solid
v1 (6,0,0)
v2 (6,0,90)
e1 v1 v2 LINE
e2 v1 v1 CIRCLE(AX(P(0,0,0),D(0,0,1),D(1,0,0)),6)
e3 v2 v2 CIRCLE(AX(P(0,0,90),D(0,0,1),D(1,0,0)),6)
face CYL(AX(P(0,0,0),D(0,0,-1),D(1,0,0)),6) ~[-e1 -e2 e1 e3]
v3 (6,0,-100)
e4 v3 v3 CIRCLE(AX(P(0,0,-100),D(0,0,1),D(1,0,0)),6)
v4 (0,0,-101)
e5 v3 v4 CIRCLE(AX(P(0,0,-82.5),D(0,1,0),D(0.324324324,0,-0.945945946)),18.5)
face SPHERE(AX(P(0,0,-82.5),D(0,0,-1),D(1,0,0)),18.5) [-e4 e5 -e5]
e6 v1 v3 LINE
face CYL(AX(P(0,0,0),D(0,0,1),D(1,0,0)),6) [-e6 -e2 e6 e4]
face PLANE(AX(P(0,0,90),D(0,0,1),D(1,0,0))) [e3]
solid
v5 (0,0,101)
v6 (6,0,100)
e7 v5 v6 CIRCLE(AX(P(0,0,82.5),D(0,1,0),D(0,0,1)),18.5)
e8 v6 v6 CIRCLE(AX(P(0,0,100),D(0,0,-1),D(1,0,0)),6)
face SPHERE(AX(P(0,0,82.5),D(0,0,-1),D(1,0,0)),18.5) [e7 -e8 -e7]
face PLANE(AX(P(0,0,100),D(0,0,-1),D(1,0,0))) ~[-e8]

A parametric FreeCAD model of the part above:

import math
import FreeCAD as App
import Part
import Sketcher
Q = App.Units.Quantity

doc = App.newDocument("Part")
body = doc.addObject("PartDesign::Body", "Body")
body.AllowCompound = True

# Sketch on XY plane
sketch1 = doc.addObject("Sketcher::SketchObject", "Sketch")
body.addObject(sketch1)
sketch1.AttachmentSupport = (doc.XY_Plane, [""])
sketch1.MapMode = "FlatFace"
sketch1.addGeometry(Part.Circle(App.Vector(0, 0, 0), App.Vector(0, 0, 1), 6), False)
sketch1.addConstraint(Sketcher.Constraint("Coincident", 0, 3, -1, 1))
sketch1.addConstraint(Sketcher.Constraint("Diameter", 0, Q("12 mm")))
pad1 = doc.addObject("PartDesign::Pad", "Pad")
body.addObject(pad1)
pad1.Profile = sketch1
pad1.Type = "TwoLengths"
pad1.Length = 90
pad1.Length2 = 100

# Sketch on XZ plane
sketch2 = doc.addObject("Sketcher::SketchObject", "Sketch001")
body.addObject(sketch2)
sketch2.AttachmentSupport = (doc.XZ_Plane, [""])
sketch2.MapMode = "FlatFace"
sketch2.addGeometry(Part.LineSegment(App.Vector(0, -100, 0), App.Vector(6, -100, 0)), False)
sketch2.addGeometry(Part.ArcOfCircle(Part.Circle(App.Vector(0, -82.5, 0), App.Vector(0, 0, 1), 18.5), math.radians(-90), math.radians(-71.075356)), False)
sketch2.addGeometry(Part.LineSegment(App.Vector(0, -101, 0), App.Vector(0, -100, 0)), False)
sketch2.addGeometry(Part.LineSegment(App.Vector(0, 100, 0), App.Vector(0, 101, 0)), False)
sketch2.addGeometry(Part.ArcOfCircle(Part.Circle(App.Vector(0, 82.5, 0), App.Vector(0, 0, 1), 18.5), math.radians(71.075356), math.radians(90)), False)
sketch2.addGeometry(Part.LineSegment(App.Vector(6, 100, 0), App.Vector(0, 100, 0)), False)
sketch2.addConstraint(Sketcher.Constraint("Coincident", 0, 2, 1, 2))
sketch2.addConstraint(Sketcher.Constraint("Coincident", 1, 1, 2, 1))
sketch2.addConstraint(Sketcher.Constraint("Coincident", 2, 2, 0, 1))
sketch2.addConstraint(Sketcher.Constraint("Coincident", 3, 2, 4, 2))
sketch2.addConstraint(Sketcher.Constraint("Coincident", 4, 1, 5, 1))
sketch2.addConstraint(Sketcher.Constraint("Coincident", 5, 2, 3, 1))
sketch2.addConstraint(Sketcher.Constraint("Horizontal", 0))
sketch2.addConstraint(Sketcher.Constraint("Vertical", 2))
sketch2.addConstraint(Sketcher.Constraint("Vertical", 3))
sketch2.addConstraint(Sketcher.Constraint("Horizontal", 5))
sketch2.addConstraint(Sketcher.Constraint("Equal", 1, 4))
sketch2.addConstraint(Sketcher.Constraint("Symmetric", 1, 3, 4, 3, -1, 1))
sketch2.addConstraint(Sketcher.Constraint("Symmetric", 2, 2, 5, 2, -1, 1))
sketch2.addConstraint(Sketcher.Constraint("PointOnObject", 1, 3, -2))
sketch2.addConstraint(Sketcher.Constraint("PointOnObject", 1, 1, -2))
sketch2.addConstraint(Sketcher.Constraint("DistanceY", 2, 1, 2, 2, Q("1 mm")))
sketch2.addConstraint(Sketcher.Constraint("Radius", 1, Q("18.5 mm")))
sketch2.addConstraint(Sketcher.Constraint("DistanceY", 0, 2, -1, 1, Q("100 mm")))
revolution = doc.addObject("PartDesign::Revolution", "Revolution")
body.addObject(revolution)
revolution.Profile = sketch2
revolution.ReferenceAxis = (sketch2, ["V_Axis"])
revolution.Angle = 360

doc.recompute()
